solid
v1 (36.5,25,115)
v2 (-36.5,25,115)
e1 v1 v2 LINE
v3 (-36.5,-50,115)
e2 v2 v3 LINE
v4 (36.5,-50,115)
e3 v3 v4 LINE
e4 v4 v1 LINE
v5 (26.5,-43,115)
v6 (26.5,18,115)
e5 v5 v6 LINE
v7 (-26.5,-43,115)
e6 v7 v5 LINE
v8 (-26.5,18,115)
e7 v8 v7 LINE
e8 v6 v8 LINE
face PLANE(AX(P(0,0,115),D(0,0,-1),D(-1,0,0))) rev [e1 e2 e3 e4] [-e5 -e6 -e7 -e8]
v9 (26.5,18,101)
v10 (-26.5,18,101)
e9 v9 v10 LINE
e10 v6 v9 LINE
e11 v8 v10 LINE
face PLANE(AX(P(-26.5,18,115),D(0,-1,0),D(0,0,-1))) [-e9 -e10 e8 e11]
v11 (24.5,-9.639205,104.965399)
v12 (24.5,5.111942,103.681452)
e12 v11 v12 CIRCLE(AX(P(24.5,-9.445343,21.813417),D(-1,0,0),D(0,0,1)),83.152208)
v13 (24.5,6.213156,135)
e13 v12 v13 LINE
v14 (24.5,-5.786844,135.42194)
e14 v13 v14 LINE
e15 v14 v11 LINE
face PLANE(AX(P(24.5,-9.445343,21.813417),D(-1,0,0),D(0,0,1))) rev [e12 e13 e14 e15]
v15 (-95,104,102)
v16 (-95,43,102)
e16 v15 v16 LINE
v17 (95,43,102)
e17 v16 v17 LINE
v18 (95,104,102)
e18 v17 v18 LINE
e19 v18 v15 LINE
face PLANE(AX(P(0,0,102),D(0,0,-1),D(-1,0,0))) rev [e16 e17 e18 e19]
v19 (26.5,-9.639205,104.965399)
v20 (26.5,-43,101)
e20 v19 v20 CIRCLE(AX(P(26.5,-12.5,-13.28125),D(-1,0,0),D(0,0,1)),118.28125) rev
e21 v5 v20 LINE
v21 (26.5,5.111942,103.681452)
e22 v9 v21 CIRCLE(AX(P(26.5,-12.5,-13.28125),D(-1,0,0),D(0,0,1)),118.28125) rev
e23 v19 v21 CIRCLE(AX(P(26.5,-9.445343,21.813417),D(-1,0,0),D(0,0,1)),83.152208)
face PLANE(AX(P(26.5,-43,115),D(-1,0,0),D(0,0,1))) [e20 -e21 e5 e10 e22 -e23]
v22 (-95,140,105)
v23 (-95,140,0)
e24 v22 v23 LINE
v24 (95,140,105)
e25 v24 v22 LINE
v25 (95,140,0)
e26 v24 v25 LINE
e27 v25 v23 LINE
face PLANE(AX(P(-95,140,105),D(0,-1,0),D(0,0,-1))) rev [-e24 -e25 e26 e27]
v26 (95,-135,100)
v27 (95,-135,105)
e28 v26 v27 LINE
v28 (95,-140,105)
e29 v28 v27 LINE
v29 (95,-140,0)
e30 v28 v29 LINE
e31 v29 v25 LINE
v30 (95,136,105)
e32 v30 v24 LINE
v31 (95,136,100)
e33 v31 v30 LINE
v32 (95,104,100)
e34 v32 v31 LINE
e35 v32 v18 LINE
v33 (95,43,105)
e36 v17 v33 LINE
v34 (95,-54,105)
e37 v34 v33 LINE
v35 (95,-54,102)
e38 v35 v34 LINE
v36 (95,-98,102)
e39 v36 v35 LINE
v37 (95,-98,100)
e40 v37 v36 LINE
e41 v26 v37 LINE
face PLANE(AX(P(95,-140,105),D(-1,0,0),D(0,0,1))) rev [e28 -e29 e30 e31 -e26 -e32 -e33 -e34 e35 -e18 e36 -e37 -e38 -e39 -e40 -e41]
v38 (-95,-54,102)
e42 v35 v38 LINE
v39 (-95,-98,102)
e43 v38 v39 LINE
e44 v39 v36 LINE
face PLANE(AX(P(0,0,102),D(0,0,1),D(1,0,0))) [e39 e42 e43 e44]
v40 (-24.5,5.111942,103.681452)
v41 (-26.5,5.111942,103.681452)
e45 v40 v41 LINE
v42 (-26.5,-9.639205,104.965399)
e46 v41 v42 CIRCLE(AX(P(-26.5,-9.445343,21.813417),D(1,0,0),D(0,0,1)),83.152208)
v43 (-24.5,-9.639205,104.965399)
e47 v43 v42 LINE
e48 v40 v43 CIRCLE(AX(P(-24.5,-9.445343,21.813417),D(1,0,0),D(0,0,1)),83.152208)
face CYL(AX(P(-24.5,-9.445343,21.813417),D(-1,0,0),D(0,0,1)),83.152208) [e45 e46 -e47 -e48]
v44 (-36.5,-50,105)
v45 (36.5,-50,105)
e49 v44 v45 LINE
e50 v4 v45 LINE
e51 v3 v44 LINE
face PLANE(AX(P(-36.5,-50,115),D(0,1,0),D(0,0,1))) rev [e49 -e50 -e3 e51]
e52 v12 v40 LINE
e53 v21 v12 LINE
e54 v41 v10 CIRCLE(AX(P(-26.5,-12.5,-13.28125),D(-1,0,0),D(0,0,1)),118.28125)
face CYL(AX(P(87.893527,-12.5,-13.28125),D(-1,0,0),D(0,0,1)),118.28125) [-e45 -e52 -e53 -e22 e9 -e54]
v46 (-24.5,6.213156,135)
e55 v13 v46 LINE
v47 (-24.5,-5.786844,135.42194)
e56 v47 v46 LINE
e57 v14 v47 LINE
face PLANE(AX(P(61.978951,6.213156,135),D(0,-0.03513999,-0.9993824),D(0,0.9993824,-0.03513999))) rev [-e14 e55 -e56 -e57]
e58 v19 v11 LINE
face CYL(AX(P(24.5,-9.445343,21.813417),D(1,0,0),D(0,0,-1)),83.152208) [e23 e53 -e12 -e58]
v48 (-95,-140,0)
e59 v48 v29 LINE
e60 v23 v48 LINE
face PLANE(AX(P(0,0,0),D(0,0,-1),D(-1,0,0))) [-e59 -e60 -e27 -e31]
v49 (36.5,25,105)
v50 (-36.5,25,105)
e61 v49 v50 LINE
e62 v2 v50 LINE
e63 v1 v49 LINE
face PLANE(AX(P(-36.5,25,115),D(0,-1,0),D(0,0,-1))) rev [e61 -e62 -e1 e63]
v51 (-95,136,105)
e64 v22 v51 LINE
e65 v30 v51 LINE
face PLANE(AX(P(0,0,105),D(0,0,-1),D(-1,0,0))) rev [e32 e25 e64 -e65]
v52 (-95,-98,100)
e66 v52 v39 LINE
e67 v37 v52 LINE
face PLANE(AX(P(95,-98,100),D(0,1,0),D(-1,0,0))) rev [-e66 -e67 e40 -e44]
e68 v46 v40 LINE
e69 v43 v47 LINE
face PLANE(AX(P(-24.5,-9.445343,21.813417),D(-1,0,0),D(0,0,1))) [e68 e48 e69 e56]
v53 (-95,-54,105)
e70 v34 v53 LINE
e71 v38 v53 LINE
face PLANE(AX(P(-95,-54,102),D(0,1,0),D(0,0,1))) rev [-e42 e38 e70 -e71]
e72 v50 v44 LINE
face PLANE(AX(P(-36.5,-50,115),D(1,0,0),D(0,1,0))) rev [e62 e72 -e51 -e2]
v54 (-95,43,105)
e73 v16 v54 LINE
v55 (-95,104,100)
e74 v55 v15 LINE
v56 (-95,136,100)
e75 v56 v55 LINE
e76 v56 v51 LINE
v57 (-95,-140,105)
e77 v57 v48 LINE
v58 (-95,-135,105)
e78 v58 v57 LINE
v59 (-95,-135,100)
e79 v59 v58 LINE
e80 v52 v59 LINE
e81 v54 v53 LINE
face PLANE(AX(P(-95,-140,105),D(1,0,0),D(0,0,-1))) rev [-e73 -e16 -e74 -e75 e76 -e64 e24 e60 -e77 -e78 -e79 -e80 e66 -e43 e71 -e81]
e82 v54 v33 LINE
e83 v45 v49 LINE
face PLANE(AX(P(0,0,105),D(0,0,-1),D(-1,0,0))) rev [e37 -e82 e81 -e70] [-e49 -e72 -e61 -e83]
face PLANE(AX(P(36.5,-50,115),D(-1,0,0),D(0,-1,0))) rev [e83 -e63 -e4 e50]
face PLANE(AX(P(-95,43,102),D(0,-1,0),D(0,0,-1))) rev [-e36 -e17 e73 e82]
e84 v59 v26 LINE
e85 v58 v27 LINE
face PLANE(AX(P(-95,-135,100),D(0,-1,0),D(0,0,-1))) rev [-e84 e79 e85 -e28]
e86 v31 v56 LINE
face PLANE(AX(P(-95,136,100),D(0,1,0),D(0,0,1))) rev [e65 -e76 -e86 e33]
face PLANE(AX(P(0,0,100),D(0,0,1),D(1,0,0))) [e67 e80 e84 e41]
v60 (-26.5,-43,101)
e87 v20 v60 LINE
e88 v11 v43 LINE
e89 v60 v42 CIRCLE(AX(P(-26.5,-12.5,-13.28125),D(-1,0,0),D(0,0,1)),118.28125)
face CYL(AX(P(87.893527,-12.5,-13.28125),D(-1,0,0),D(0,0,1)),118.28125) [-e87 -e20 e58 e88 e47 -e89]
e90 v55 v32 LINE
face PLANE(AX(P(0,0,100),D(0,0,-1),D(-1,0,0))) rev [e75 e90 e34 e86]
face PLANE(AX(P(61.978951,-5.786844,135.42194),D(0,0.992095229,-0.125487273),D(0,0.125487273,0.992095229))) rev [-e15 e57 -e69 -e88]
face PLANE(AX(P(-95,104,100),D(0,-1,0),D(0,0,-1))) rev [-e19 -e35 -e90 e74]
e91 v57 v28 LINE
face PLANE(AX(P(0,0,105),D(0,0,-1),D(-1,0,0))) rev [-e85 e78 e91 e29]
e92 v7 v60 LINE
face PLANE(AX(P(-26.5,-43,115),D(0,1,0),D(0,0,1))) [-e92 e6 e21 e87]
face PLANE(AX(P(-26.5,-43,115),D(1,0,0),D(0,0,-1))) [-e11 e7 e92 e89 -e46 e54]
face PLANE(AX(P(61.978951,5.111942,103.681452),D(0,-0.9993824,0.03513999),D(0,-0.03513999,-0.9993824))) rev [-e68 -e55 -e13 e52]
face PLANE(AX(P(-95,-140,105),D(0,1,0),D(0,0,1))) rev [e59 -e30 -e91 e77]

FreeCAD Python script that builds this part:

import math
import FreeCAD as App
import Part
import Sketcher

V = App.Vector
Q = App.Units.Quantity

doc = App.newDocument("Part")
body = doc.addObject("PartDesign::Body", "Body")

# Sketch on XY plane
sketch1 = body.newObject("Sketcher::SketchObject", "Sketch")
sketch1.AttachmentSupport = (doc.getObject("XY_Plane"), [""])
sketch1.MapMode = "FlatFace"
sketch1.addGeometry(Part.LineSegment(V(-95, 140, 0), V(-95, -140, 0)), False)
sketch1.addGeometry(Part.LineSegment(V(-95, -140, 0), V(95, -140, 0)), False)
sketch1.addGeometry(Part.LineSegment(V(95, -140, 0), V(95, 140, 0)), False)
sketch1.addGeometry(Part.LineSegment(V(95, 140, 0), V(-95, 140, 0)), False)
sketch1.addConstraint(Sketcher.Constraint("Coincident", 0, 2, 1, 1))
sketch1.addConstraint(Sketcher.Constraint("Coincident", 1, 2, 2, 1))
sketch1.addConstraint(Sketcher.Constraint("Coincident", 2, 2, 3, 1))
sketch1.addConstraint(Sketcher.Constraint("Coincident", 3, 2, 0, 1))
sketch1.addConstraint(Sketcher.Constraint("Vertical", 0))
sketch1.addConstraint(Sketcher.Constraint("Horizontal", 1))
sketch1.addConstraint(Sketcher.Constraint("Vertical", 2))
sketch1.addConstraint(Sketcher.Constraint("Horizontal", 3))
sketch1.addConstraint(Sketcher.Constraint("Symmetric", 0, 2, 2, 2, -1, 1))
sketch1.addConstraint(Sketcher.Constraint("DistanceX", 1, 1, 1, 2, Q("190 mm")))
sketch1.addConstraint(Sketcher.Constraint("DistanceY", 0, 2, 0, 1, Q("280 mm")))
pad1 = body.newObject("PartDesign::Pad", "Pad")
pad1.Profile = sketch1
pad1.Length = 105

# Sketch on XY plane
sketch2 = body.newObject("Sketcher::SketchObject", "Sketch001")
sketch2.AttachmentSupport = (doc.getObject("XY_Plane"), [""])
sketch2.MapMode = "FlatFace"
sketch2.AttachmentOffset = App.Placement(V(0, 0, 105), App.Rotation())
sketch2.addGeometry(Part.LineSegment(V(-36, 25, 0), V(-36, -50, 0)), False)
sketch2.addGeometry(Part.LineSegment(V(-36, -50, 0), V(36, -50, 0)), False)
sketch2.addGeometry(Part.LineSegment(V(36, -50, 0), V(36, 25, 0)), False)
sketch2.addGeometry(Part.LineSegment(V(36, 25, 0), V(-36, 25, 0)), False)
sketch2.addGeometry(Part.LineSegment(V(26, -43, 0), V(-26, -43, 0)), False)
sketch2.addGeometry(Part.LineSegment(V(-26, -43, 0), V(-26, 18, 0)), False)
sketch2.addGeometry(Part.LineSegment(V(-26, 18, 0), V(26, 18, 0)), False)
sketch2.addGeometry(Part.LineSegment(V(26, 18, 0), V(26, -43, 0)), False)
sketch2.addConstraint(Sketcher.Constraint("Coincident", 0, 2, 1, 1))
sketch2.addConstraint(Sketcher.Constraint("Coincident", 1, 2, 2, 1))
sketch2.addConstraint(Sketcher.Constraint("Coincident", 2, 2, 3, 1))
sketch2.addConstraint(Sketcher.Constraint("Coincident", 3, 2, 0, 1))
sketch2.addConstraint(Sketcher.Constraint("Coincident", 4, 2, 5, 1))
sketch2.addConstraint(Sketcher.Constraint("Coincident", 5, 2, 6, 1))
sketch2.addConstraint(Sketcher.Constraint("Coincident", 6, 2, 7, 1))
sketch2.addConstraint(Sketcher.Constraint("Coincident", 7, 2, 4, 1))
sketch2.addConstraint(Sketcher.Constraint("Vertical", 0))
sketch2.addConstraint(Sketcher.Constraint("Horizontal", 1))
sketch2.addConstraint(Sketcher.Constraint("Vertical", 2))
sketch2.addConstraint(Sketcher.Constraint("Horizontal", 3))
sketch2.addConstraint(Sketcher.Constraint("Horizontal", 4))
sketch2.addConstraint(Sketcher.Constraint("Vertical", 5))
sketch2.addConstraint(Sketcher.Constraint("Horizontal", 6))
sketch2.addConstraint(Sketcher.Constraint("Vertical", 7))
sketch2.addConstraint(Sketcher.Constraint("DistanceX", 1, 1, 1, 2, Q("73 mm")))
sketch2.addConstraint(Sketcher.Constraint("DistanceX", 4, 2, 4, 1, Q("53 mm")))
sketch2.addConstraint(Sketcher.Constraint("DistanceY", 0, 2, 0, 1, Q("75 mm")))
sketch2.addConstraint(Sketcher.Constraint("DistanceY", 5, 1, 5, 2, Q("61 mm")))
sketch2.addConstraint(Sketcher.Constraint("DistanceY", 0, 2, -1, 1, Q("50 mm")))
sketch2.addConstraint(Sketcher.Constraint("DistanceY", 4, 2, -1, 1, Q("43 mm")))
sketch2.addConstraint(Sketcher.Constraint("DistanceX", 0, 2, 4, 2, Q("10 mm")))
sketch2.addConstraint(Sketcher.Constraint("DistanceX", 0, 2, -1, 1, Q("36.5 mm")))
pad2 = body.newObject("PartDesign::Pad", "Pad001")
pad2.Profile = sketch2
pad2.Length = 10

# Sketch on XY plane
sketch3 = body.newObject("Sketcher::SketchObject", "Sketch002")
sketch3.AttachmentSupport = (doc.getObject("XY_Plane"), [""])
sketch3.MapMode = "FlatFace"
sketch3.AttachmentOffset = App.Placement(V(0, 0, 105), App.Rotation())
sketch3.addGeometry(Part.LineSegment(V(-95, 136, 0), V(-95, 104, 0)), False)
sketch3.addGeometry(Part.LineSegment(V(-95, 104, 0), V(95, 104, 0)), False)
sketch3.addGeometry(Part.LineSegment(V(95, 104, 0), V(95, 136, 0)), False)
sketch3.addGeometry(Part.LineSegment(V(95, 136, 0), V(-95, 136, 0)), False)
sketch3.addConstraint(Sketcher.Constraint("Coincident", 0, 2, 1, 1))
sketch3.addConstraint(Sketcher.Constraint("Coincident", 1, 2, 2, 1))
sketch3.addConstraint(Sketcher.Constraint("Coincident", 2, 2, 3, 1))
sketch3.addConstraint(Sketcher.Constraint("Coincident", 3, 2, 0, 1))
sketch3.addConstraint(Sketcher.Constraint("Vertical", 0))
sketch3.addConstraint(Sketcher.Constraint("Horizontal", 1))
sketch3.addConstraint(Sketcher.Constraint("Vertical", 2))
sketch3.addConstraint(Sketcher.Constraint("Horizontal", 3))
sketch3.addConstraint(Sketcher.Constraint("DistanceX", 1, 1, 1, 2, Q("190 mm")))
sketch3.addConstraint(Sketcher.Constraint("DistanceY", 0, 2, 0, 1, Q("32 mm")))
sketch3.addConstraint(Sketcher.Constraint("DistanceX", 0, 2, -1, 1, Q("95 mm")))
sketch3.addConstraint(Sketcher.Constraint("DistanceY", -1, 1, 0, 2, Q("104 mm")))
pocket1 = body.newObject("PartDesign::Pocket", "Pocket")
pocket1.Profile = sketch3
pocket1.Length = 5

# Sketch on XY plane
sketch4 = body.newObject("Sketcher::SketchObject", "Sketch003")
sketch4.AttachmentSupport = (doc.getObject("XY_Plane"), [""])
sketch4.MapMode = "FlatFace"
sketch4.AttachmentOffset = App.Placement(V(0, 0, 105), App.Rotation())
sketch4.addGeometry(Part.LineSegment(V(-95, 104, 0), V(-95, 43, 0)), False)
sketch4.addGeometry(Part.LineSegment(V(-95, 43, 0), V(95, 43, 0)), False)
sketch4.addGeometry(Part.LineSegment(V(95, 43, 0), V(95, 104, 0)), False)
sketch4.addGeometry(Part.LineSegment(V(95, 104, 0), V(-95, 104, 0)), False)
sketch4.addConstraint(Sketcher.Constraint("Coincident", 0, 2, 1, 1))
sketch4.addConstraint(Sketcher.Constraint("Coincident", 1, 2, 2, 1))
sketch4.addConstraint(Sketcher.Constraint("Coincident", 2, 2, 3, 1))
sketch4.addConstraint(Sketcher.Constraint("Coincident", 3, 2, 0, 1))
sketch4.addConstraint(Sketcher.Constraint("Vertical", 0))
sketch4.addConstraint(Sketcher.Constraint("Horizontal", 1))
sketch4.addConstraint(Sketcher.Constraint("Vertical", 2))
sketch4.addConstraint(Sketcher.Constraint("Horizontal", 3))
sketch4.addConstraint(Sketcher.Constraint("DistanceX", 1, 1, 1, 2, Q("190 mm")))
sketch4.addConstraint(Sketcher.Constraint("DistanceY", 0, 2, 0, 1, Q("61 mm")))
sketch4.addConstraint(Sketcher.Constraint("DistanceX", 0, 2, -1, 1, Q("95 mm")))
sketch4.addConstraint(Sketcher.Constraint("DistanceY", -1, 1, 0, 2, Q("43 mm")))
pocket2 = body.newObject("PartDesign::Pocket", "Pocket001")
pocket2.Profile = sketch4
pocket2.Length = 3

# Sketch on YZ plane
sketch5 = body.newObject("Sketcher::SketchObject", "Sketch004")
sketch5.AttachmentSupport = (doc.getObject("YZ_Plane"), [""])
sketch5.MapMode = "FlatFace"
sketch5.AttachmentOffset = App.Placement(V(0, 0, -26.5), App.Rotation())
sketch5.addGeometry(Part.LineSegment(V(18, 101, 0), V(18, 105, 0)), False)
sketch5.addGeometry(Part.LineSegment(V(18, 105, 0), V(-15, 107.9, 0)), False)
sketch5.addGeometry(Part.LineSegment(V(-15, 107.9, 0), V(-43, 105, 0)), False)
sketch5.addGeometry(Part.LineSegment(V(-43, 105, 0), V(-43, 101, 0)), False)
sketch5.addGeometry(Part.ArcOfCircle(Part.Circle(V(-12.5, -13.3, 0), V(0, 0, 1), 118.3), math.radians(75), math.radians(105)), False)
sketch5.addConstraint(Sketcher.Constraint("Coincident", 0, 2, 1, 1))
sketch5.addConstraint(Sketcher.Constraint("Coincident", 1, 2, 2, 1))
sketch5.addConstraint(Sketcher.Constraint("Coincident", 2, 2, 3, 1))
sketch5.addConstraint(Sketcher.Constraint("Coincident", 3, 2, 4, 2))
sketch5.addConstraint(Sketcher.Constraint("Coincident", 4, 1, 0, 1))
sketch5.addConstraint(Sketcher.Constraint("Vertical", 0))
sketch5.addConstraint(Sketcher.Constraint("Vertical", 3))
sketch5.addConstraint(Sketcher.Constraint("Horizontal", 0, 2, 2, 2))
sketch5.addConstraint(Sketcher.Constraint("Horizontal", 3, 2, 4, 1))
sketch5.addConstraint(Sketcher.Constraint("DistanceY", 0, 1, 0, 2, Q("4 mm")))
sketch5.addConstraint(Sketcher.Constraint("DistanceX", -1, 1, 0, 2, Q("18 mm")))
sketch5.addConstraint(Sketcher.Constraint("DistanceY", -1, 1, 0, 2, Q("105 mm")))
sketch5.addConstraint(Sketcher.Constraint("DistanceX", 2, 2, -1, 1, Q("43 mm")))
sketch5.addConstraint(Sketcher.Constraint("Radius", 4, Q("118.28125 mm")))
sketch5.addConstraint(Sketcher.Constraint("DistanceX", 1, 2, -1, 1, Q("14.951898 mm")))
sketch5.addConstraint(Sketcher.Constraint("Distance", 2, Q("28.201778 mm")))
pocket3 = body.newObject("PartDesign::Pocket", "Pocket002")
pocket3.Profile = sketch5
pocket3.Length = 53
pocket3.Reversed = True

# Sketch on YZ plane
sketch6 = body.newObject("Sketcher::SketchObject", "Sketch005")
sketch6.AttachmentSupport = (doc.getObject("YZ_Plane"), [""])
sketch6.MapMode = "FlatFace"
sketch6.AttachmentOffset = App.Placement(V(0, 0, -26.5), App.Rotation())
sketch6.addGeometry(Part.LineSegment(V(5, 104, 0), V(6, 135, 0)), False)
sketch6.addGeometry(Part.LineSegment(V(6, 135, 0), V(-6, 135, 0)), False)
sketch6.addGeometry(Part.LineSegment(V(-6, 135, 0), V(-10, 105, 0)), False)
sketch6.addGeometry(Part.ArcOfCircle(Part.Circle(V(-13, -13, 0), V(0, 0, 1), 118), math.radians(81.44), math.radians(88.61)), False)
sketch6.addConstraint(Sketcher.Constraint("Coincident", 0, 2, 1, 1))
sketch6.addConstraint(Sketcher.Constraint("Coincident", 1, 2, 2, 1))
sketch6.addConstraint(Sketcher.Constraint("Coincident", 2, 2, 3, 2))
sketch6.addConstraint(Sketcher.Constraint("Coincident", 3, 1, 0, 1))
sketch6.addConstraint(Sketcher.Constraint("Perpendicular", 0, 1))
sketch6.addConstraint(Sketcher.Constraint("DistanceY", -1, 1, 0, 2, Q("135 mm")))
sketch6.addConstraint(Sketcher.Constraint("DistanceX", 1, 2, 0, 2, Q("12 mm")))
sketch6.addConstraint(Sketcher.Constraint("DistanceX", 3, 3, -1, 1, Q("12.5 mm")))
sketch6.addConstraint(Sketcher.Constraint("Radius", 3, Q("118.28125 mm")))
sketch6.addConstraint(Sketcher.Constraint("DistanceY", -1, 1, 2, 2, Q("104.965399 mm")))
sketch6.addConstraint(Sketcher.Constraint("DistanceY", 3, 3, 3, 1, Q("116.962702 mm")))
sketch6.addConstraint(Sketcher.Constraint("Distance", 2, Q("30.699212 mm")))
sketch6.addConstraint(Sketcher.Constraint("DistanceY", 3, 3, -1, 1, Q("13.28125 mm")))
pad3 = body.newObject("PartDesign::Pad", "Pad002")
pad3.Profile = sketch6
pad3.Length = 53

# Sketch on YZ plane
sketch7 = body.newObject("Sketcher::SketchObject", "Sketch006")
sketch7.AttachmentSupport = (doc.getObject("YZ_Plane"), [""])
sketch7.MapMode = "FlatFace"
sketch7.AttachmentOffset = App.Placement(V(0, 0, 26.5), App.Rotation())
sketch7.addGeometry(Part.LineSegment(V(5, 104, 0), V(6, 135, 0)), False)
sketch7.addGeometry(Part.LineSegment(V(6, 135, 0), V(-6, 135, 0)), False)
sketch7.addGeometry(Part.LineSegment(V(-6, 135, 0), V(-10, 105, 0)), False)
sketch7.addGeometry(Part.ArcOfCircle(Part.Circle(V(-9, 22, 0), V(0, 0, 1), 83), math.radians(79.92), math.radians(90.13)), False)
sketch7.addConstraint(Sketcher.Constraint("Coincident", 0, 2, 1, 1))
sketch7.addConstraint(Sketcher.Constraint("Coincident", 1, 2, 2, 1))
sketch7.addConstraint(Sketcher.Constraint("Coincident", 2, 2, 3, 2))
sketch7.addConstraint(Sketcher.Constraint("Coincident", 3, 1, 0, 1))
sketch7.addConstraint(Sketcher.Constraint("Perpendicular", 0, 1))
sketch7.addConstraint(Sketcher.Constraint("DistanceY", -1, 1, 0, 2, Q("135 mm")))
sketch7.addConstraint(Sketcher.Constraint("DistanceX", 1, 2, 0, 2, Q("12 mm")))
sketch7.addConstraint(Sketcher.Constraint("Radius", 3, Q("83.152208 mm")))
sketch7.addConstraint(Sketcher.Constraint("DistanceY", -1, 1, 2, 2, Q("104.965399 mm")))
sketch7.addConstraint(Sketcher.Constraint("DistanceX", 3, 3, 0, 2, Q("15.658499 mm")))
sketch7.addConstraint(Sketcher.Constraint("Distance", 2, Q("30.699212 mm")))
sketch7.addConstraint(Sketcher.Constraint("DistanceY", -1, 1, 1, 2, Q("135.42194 mm")))
sketch7.addConstraint(Sketcher.Constraint("DistanceX", 3, 3, -1, 1, Q("9.445343 mm")))
pocket4 = body.newObject("PartDesign::Pocket", "Pocket003")
pocket4.Profile = sketch7
pocket4.Length = 2

# Sketch on YZ plane
sketch8 = body.newObject("Sketcher::SketchObject", "Sketch007")
sketch8.AttachmentSupport = (doc.getObject("YZ_Plane"), [""])
sketch8.MapMode = "FlatFace"
sketch8.AttachmentOffset = App.Placement(V(0, 0, -26.5), App.Rotation())
sketch8.addGeometry(Part.LineSegment(V(6, 135, 0), V(5, 104, 0)), False)
sketch8.addGeometry(Part.ArcOfCircle(Part.Circle(V(-9, 22, 0), V(0, 0, 1), 83), math.radians(79.92), math.radians(90.13)), False)
sketch8.addGeometry(Part.LineSegment(V(-10, 105, 0), V(-6, 135, 0)), False)
sketch8.addGeometry(Part.LineSegment(V(-6, 135, 0), V(6, 135, 0)), False)
sketch8.addConstraint(Sketcher.Constraint("Coincident", 0, 2, 1, 1))
sketch8.addConstraint(Sketcher.Constraint("Coincident", 1, 2, 2, 1))
sketch8.addConstraint(Sketcher.Constraint("Coincident", 2, 2, 3, 1))
sketch8.addConstraint(Sketcher.Constraint("Coincident", 3, 2, 0, 1))
sketch8.addConstraint(Sketcher.Constraint("Perpendicular", 0, 3))
sketch8.addConstraint(Sketcher.Constraint("DistanceY", -1, 1, 3, 2, Q("135 mm")))
sketch8.addConstraint(Sketcher.Constraint("DistanceX", 2, 2, 3, 2, Q("12 mm")))
sketch8.addConstraint(Sketcher.Constraint("Radius", 1, Q("83.152208 mm")))
sketch8.addConstraint(Sketcher.Constraint("DistanceY", -1, 1, 1, 2, Q("104.965399 mm")))
sketch8.addConstraint(Sketcher.Constraint("DistanceX", 1, 3, 2, 2, Q("3.658499 mm")))
sketch8.addConstraint(Sketcher.Constraint("Distance", 2, Q("30.699212 mm")))
sketch8.addConstraint(Sketcher.Constraint("DistanceY", -1, 1, 0, 2, Q("103.681452 mm")))
sketch8.addConstraint(Sketcher.Constraint("DistanceX", 1, 3, -1, 1, Q("9.445343 mm")))
pocket5 = body.newObject("PartDesign::Pocket", "Pocket004")
pocket5.Profile = sketch8
pocket5.Length = 2
pocket5.Reversed = True

# Sketch on XY plane
sketch9 = body.newObject("Sketcher::SketchObject", "Sketch008")
sketch9.AttachmentSupport = (doc.getObject("XY_Plane"), [""])
sketch9.MapMode = "FlatFace"
sketch9.AttachmentOffset = App.Placement(V(0, 0, 105), App.Rotation())
sketch9.addGeometry(Part.LineSegment(V(-95, -54, 0), V(-95, -98, 0)), False)
sketch9.addGeometry(Part.LineSegment(V(-95, -98, 0), V(95, -98, 0)), False)
sketch9.addGeometry(Part.LineSegment(V(95, -98, 0), V(95, -54, 0)), False)
sketch9.addGeometry(Part.LineSegment(V(95, -54, 0), V(-95, -54, 0)), False)
sketch9.addConstraint(Sketcher.Constraint("Coincident", 0, 2, 1, 1))
sketch9.addConstraint(Sketcher.Constraint("Coincident", 1, 2, 2, 1))
sketch9.addConstraint(Sketcher.Constraint("Coincident", 2, 2, 3, 1))
sketch9.addConstraint(Sketcher.Constraint("Coincident", 3, 2, 0, 1))
sketch9.addConstraint(Sketcher.Constraint("Vertical", 0))
sketch9.addConstraint(Sketcher.Constraint("Horizontal", 1))
sketch9.addConstraint(Sketcher.Constraint("Vertical", 2))
sketch9.addConstraint(Sketcher.Constraint("Horizontal", 3))
sketch9.addConstraint(Sketcher.Constraint("DistanceX", 1, 1, 1, 2, Q("190 mm")))
sketch9.addConstraint(Sketcher.Constraint("DistanceY", 0, 2, 0, 1, Q("44 mm")))
sketch9.addConstraint(Sketcher.Constraint("DistanceX", 0, 2, -1, 1, Q("95 mm")))
sketch9.addConstraint(Sketcher.Constraint("DistanceY", 0, 2, -1, 1, Q("98 mm")))
pocket6 = body.newObject("PartDesign::Pocket", "Pocket005")
pocket6.Profile = sketch9
pocket6.Length = 3

# Sketch on XY plane
sketch10 = body.newObject("Sketcher::SketchObject", "Sketch009")
sketch10.AttachmentSupport = (doc.getObject("XY_Plane"), [""])
sketch10.MapMode = "FlatFace"
sketch10.AttachmentOffset = App.Placement(V(0, 0, 105), App.Rotation())
sketch10.addGeometry(Part.LineSegment(V(-95, -98, 0), V(-95, -135, 0)), False)
sketch10.addGeometry(Part.LineSegment(V(-95, -135, 0), V(95, -135, 0)), False)
sketch10.addGeometry(Part.LineSegment(V(95, -135, 0), V(95, -98, 0)), False)
sketch10.addGeometry(Part.LineSegment(V(95, -98, 0), V(-95, -98, 0)), False)
sketch10.addConstraint(Sketcher.Constraint("Coincident", 0, 2, 1, 1))
sketch10.addConstraint(Sketcher.Constraint("Coincident", 1, 2, 2, 1))
sketch10.addConstraint(Sketcher.Constraint("Coincident", 2, 2, 3, 1))
sketch10.addConstraint(Sketcher.Constraint("Coincident", 3, 2, 0, 1))
sketch10.addConstraint(Sketcher.Constraint("Vertical", 0))
sketch10.addConstraint(Sketcher.Constraint("Horizontal", 1))
sketch10.addConstraint(Sketcher.Constraint("Vertical", 2))
sketch10.addConstraint(Sketcher.Constraint("Horizontal", 3))
sketch10.addConstraint(Sketcher.Constraint("DistanceX", 1, 1, 1, 2, Q("190 mm")))
sketch10.addConstraint(Sketcher.Constraint("DistanceY", 0, 2, 0, 1, Q("37 mm")))
sketch10.addConstraint(Sketcher.Constraint("DistanceX", 0, 2, -1, 1, Q("95 mm")))
sketch10.addConstraint(Sketcher.Constraint("DistanceY", 0, 2, -1, 1, Q("135 mm")))
pocket7 = body.newObject("PartDesign::Pocket", "Pocket006")
pocket7.Profile = sketch10
pocket7.Length = 5

doc.recompute()
